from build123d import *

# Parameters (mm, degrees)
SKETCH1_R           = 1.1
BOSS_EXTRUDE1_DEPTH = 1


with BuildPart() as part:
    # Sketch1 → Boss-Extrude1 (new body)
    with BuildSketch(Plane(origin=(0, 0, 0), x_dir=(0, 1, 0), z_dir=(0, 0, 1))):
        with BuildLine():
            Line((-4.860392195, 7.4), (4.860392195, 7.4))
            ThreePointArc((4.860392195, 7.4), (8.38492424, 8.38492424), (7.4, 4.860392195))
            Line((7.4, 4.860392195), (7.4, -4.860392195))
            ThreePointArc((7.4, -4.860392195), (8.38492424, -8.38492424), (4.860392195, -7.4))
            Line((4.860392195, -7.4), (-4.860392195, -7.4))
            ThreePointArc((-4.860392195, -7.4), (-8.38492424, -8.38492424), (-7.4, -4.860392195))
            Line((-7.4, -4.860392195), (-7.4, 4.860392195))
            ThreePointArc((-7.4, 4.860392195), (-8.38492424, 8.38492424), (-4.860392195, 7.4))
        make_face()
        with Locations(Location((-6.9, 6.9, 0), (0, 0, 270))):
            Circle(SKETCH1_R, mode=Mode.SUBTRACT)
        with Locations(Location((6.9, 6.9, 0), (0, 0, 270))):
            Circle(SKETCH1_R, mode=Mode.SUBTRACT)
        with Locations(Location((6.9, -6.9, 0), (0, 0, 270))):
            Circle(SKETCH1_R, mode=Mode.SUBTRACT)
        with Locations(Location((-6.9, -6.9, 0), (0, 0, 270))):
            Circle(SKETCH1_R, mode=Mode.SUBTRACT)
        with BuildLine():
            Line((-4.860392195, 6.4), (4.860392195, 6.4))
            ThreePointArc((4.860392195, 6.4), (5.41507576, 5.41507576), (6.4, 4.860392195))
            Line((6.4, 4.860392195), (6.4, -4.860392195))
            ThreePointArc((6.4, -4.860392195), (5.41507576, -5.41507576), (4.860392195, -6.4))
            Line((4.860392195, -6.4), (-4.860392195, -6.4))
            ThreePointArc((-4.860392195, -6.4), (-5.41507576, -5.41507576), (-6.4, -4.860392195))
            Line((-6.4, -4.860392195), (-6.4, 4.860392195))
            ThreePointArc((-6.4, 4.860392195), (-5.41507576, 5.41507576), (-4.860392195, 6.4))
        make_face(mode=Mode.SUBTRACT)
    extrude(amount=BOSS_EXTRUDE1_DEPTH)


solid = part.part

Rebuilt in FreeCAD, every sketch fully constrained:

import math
import FreeCAD as App
import Part
import Sketcher

V = App.Vector

doc = App.newDocument("Part")
body = doc.addObject("PartDesign::Body", "Body")

sketch1 = doc.addObject("Sketcher::SketchObject", "Sketch")
body.addObject(sketch1)
sketch1.AttachmentSupport = (doc.XY_Plane, [""])
sketch1.MapMode = "FlatFace"
sketch1.addGeometry([
    Part.LineSegment(V(-7.4, 4.860392, 0), V(-7.4, -4.860392, 0)),
    Part.ArcOfCircle(Part.Circle(V(-6.9, -6.9, 0), V(0, 0, 1), 2.1), math.radians(103.774147), math.radians(346.225853)),
    Part.LineSegment(V(-4.860392, -7.4, 0), V(4.860392, -7.4, 0)),
    Part.ArcOfCircle(Part.Circle(V(6.9, -6.9, 0), V(0, 0, 1), 2.1), math.radians(-166.225853), math.radians(76.225853)),
    Part.LineSegment(V(7.4, -4.860392, 0), V(7.4, 4.860392, 0)),
    Part.ArcOfCircle(Part.Circle(V(6.9, 6.9, 0), V(0, 0, 1), 2.1), math.radians(-76.225853), math.radians(166.225853)),
    Part.LineSegment(V(4.860392, 7.4, 0), V(-4.860392, 7.4, 0)),
    Part.ArcOfCircle(Part.Circle(V(-6.9, 6.9, 0), V(0, 0, 1), 2.1), math.radians(13.774147), math.radians(256.225853)),
    Part.Circle(V(6.9, 6.9, 0), V(0, 0, 1), 1.1),
    Part.Circle(V(6.9, -6.9, 0), V(0, 0, 1), 1.1),
    Part.Circle(V(-6.9, 6.9, 0), V(0, 0, 1), 1.1),
    Part.LineSegment(V(-6.4, -4.860392, 0), V(-6.4, 4.860392, 0)),
    Part.ArcOfCircle(Part.Circle(V(-6.9, 6.9, 0), V(0, 0, 1), 2.1), math.radians(-76.225853), math.radians(-13.774147)),
    Part.LineSegment(V(-4.860392, 6.4, 0), V(4.860392, 6.4, 0)),
    Part.ArcOfCircle(Part.Circle(V(6.9, 6.9, 0), V(0, 0, 1), 2.1), math.radians(-166.225853), math.radians(-103.774147)),
    Part.LineSegment(V(6.4, 4.860392, 0), V(6.4, -4.860392, 0)),
    Part.ArcOfCircle(Part.Circle(V(6.9, -6.9, 0), V(0, 0, 1), 2.1), math.radians(103.774147), math.radians(166.225853)),
    Part.LineSegment(V(4.860392, -6.4, 0), V(-4.860392, -6.4, 0)),
    Part.ArcOfCircle(Part.Circle(V(-6.9, -6.9, 0), V(0, 0, 1), 2.1), math.radians(13.774147), math.radians(76.225853)),
    Part.Circle(V(-6.9, -6.9, 0), V(0, 0, 1), 1.1),
], False)
sketch1.addConstraint([
    Sketcher.Constraint("Coincident", 0, 2, 1, 1),
    Sketcher.Constraint("Coincident", 1, 2, 2, 1),
    Sketcher.Constraint("Coincident", 2, 2, 3, 1),
    Sketcher.Constraint("Coincident", 3, 2, 4, 1),
    Sketcher.Constraint("Coincident", 4, 2, 5, 1),
    Sketcher.Constraint("Coincident", 5, 2, 6, 1),
    Sketcher.Constraint("Coincident", 6, 2, 7, 1),
    Sketcher.Constraint("Coincident", 7, 2, 0, 1),
    Sketcher.Constraint("Coincident", 11, 2, 12, 1),
    Sketcher.Constraint("Coincident", 12, 2, 13, 1),
    Sketcher.Constraint("Coincident", 13, 2, 14, 1),
    Sketcher.Constraint("Coincident", 14, 2, 15, 1),
    Sketcher.Constraint("Coincident", 15, 2, 16, 1),
    Sketcher.Constraint("Coincident", 16, 2, 17, 1),
    Sketcher.Constraint("Coincident", 17, 2, 18, 1),
    Sketcher.Constraint("Coincident", 18, 2, 11, 1),
    Sketcher.Constraint("Vertical", 0),
    Sketcher.Constraint("Horizontal", 2),
    Sketcher.Constraint("Vertical", 4),
    Sketcher.Constraint("Horizontal", 6),
    Sketcher.Constraint("Vertical", 11),
    Sketcher.Constraint("Horizontal", 13),
    Sketcher.Constraint("Vertical", 15),
    Sketcher.Constraint("Horizontal", 17),
    Sketcher.Constraint("Coincident", 8, 3, 5, 3),
    Sketcher.Constraint("Coincident", 9, 3, 3, 3),
    Sketcher.Constraint("Coincident", 10, 3, 7, 3),
    Sketcher.Constraint("Coincident", 12, 3, 7, 3),
    Sketcher.Constraint("Coincident", 14, 3, 5, 3),
    Sketcher.Constraint("Coincident", 16, 3, 3, 3),
    Sketcher.Constraint("Coincident", 18, 3, 1, 3),
    Sketcher.Constraint("Coincident", 19, 3, 1, 3),
    Sketcher.Constraint("Equal", 1, 3),
    Sketcher.Constraint("Equal", 3, 5),
    Sketcher.Constraint("Equal", 5, 7),
    Sketcher.Constraint("Equal", 8, 9),
    Sketcher.Constraint("Equal", 9, 10),
    Sketcher.Constraint("Equal", 7, 12),
    Sketcher.Constraint("Equal", 12, 14),
    Sketcher.Constraint("Equal", 14, 16),
    Sketcher.Constraint("Equal", 16, 18),
    Sketcher.Constraint("Equal", 10, 19),
    Sketcher.Constraint("Symmetric", 1, 3, 5, 3, -1, 1),
    Sketcher.Constraint("Symmetric", 3, 3, 7, 3, -1, 1),
    Sketcher.Constraint("Symmetric", 1, 3, 3, 3, -2),
    Sketcher.Constraint("Horizontal", 0, 2, 3, 2),
    Sketcher.Constraint("Horizontal", 7, 2, 11, 2),
    Sketcher.Constraint("Horizontal", 11, 2, 14, 2),
    Sketcher.Constraint("Vertical", 2, 2, 5, 2),
    Sketcher.Constraint("Vertical", 6, 2, 12, 2),
    Sketcher.Constraint("Vertical", 13, 2, 16, 2),
    Sketcher.Constraint("Equal", 17, 0),
    Sketcher.Constraint("Diameter", 8, 2.2),
    Sketcher.Constraint("Radius", 1, 2.1),
    Sketcher.Constraint("DistanceX", 7, 2, 11, 2, 1.0),
    Sketcher.Constraint("DistanceY", 12, 2, 6, 2, 1.0),
    Sketcher.Constraint("DistanceX", 1, 3, -1, 1, 6.9),
])
pad1 = doc.addObject("PartDesign::Pad", "Pad")
body.addObject(pad1)
pad1.Profile = sketch1
pad1.Length = 1

doc.recompute()
